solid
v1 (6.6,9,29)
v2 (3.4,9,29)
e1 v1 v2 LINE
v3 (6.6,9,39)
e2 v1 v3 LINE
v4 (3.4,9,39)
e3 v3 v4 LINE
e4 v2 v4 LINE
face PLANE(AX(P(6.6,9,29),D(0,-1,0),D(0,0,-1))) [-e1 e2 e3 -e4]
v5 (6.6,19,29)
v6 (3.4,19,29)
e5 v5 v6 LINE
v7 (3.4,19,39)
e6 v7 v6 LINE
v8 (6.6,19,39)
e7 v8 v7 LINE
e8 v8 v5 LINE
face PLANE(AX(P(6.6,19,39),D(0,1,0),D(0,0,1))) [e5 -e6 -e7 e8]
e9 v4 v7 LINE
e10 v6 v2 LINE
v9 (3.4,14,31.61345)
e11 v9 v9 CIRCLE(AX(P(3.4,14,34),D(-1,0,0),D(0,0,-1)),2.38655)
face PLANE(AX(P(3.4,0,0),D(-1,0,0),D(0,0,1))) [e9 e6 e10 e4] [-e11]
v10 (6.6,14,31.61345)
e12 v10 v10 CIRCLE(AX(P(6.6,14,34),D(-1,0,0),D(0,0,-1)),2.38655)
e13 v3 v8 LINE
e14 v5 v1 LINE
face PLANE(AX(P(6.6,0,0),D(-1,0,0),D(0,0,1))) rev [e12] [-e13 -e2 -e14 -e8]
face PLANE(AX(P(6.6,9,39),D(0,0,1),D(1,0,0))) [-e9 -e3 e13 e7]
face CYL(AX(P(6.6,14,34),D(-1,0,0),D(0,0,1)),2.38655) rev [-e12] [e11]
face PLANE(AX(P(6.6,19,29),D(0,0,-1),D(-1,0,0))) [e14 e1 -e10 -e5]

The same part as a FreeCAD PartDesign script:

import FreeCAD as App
import Part
import Sketcher
from FreeCAD import Vector
Q = App.Units.Quantity

doc = App.newDocument("Part")
body = doc.addObject("PartDesign::Body", "Body")

sketch1 = doc.addObject("Sketcher::SketchObject", "Sketch")
body.addObject(sketch1)
sketch1.AttachmentSupport = (doc.YZ_Plane, [""])
sketch1.MapMode = "FlatFace"
sketch1.AttachmentOffset = App.Placement(Vector(0, 0, 3.4), App.Rotation())
sketch1.addGeometry([
    Part.LineSegment(Vector(19, 39, 0), Vector(19, 29, 0)),
    Part.LineSegment(Vector(19, 29, 0), Vector(9, 29, 0)),
    Part.LineSegment(Vector(9, 29, 0), Vector(9, 39, 0)),
    Part.LineSegment(Vector(9, 39, 0), Vector(19, 39, 0)),
    Part.Circle(Vector(14, 34, 0), Vector(0, 0, 1), 2.4),
], False)
sketch1.addConstraint([
    Sketcher.Constraint("Coincident", 0, 2, 1, 1),
    Sketcher.Constraint("Coincident", 1, 2, 2, 1),
    Sketcher.Constraint("Coincident", 2, 2, 3, 1),
    Sketcher.Constraint("Coincident", 3, 2, 0, 1),
    Sketcher.Constraint("Vertical", 0),
    Sketcher.Constraint("Horizontal", 1),
    Sketcher.Constraint("Vertical", 2),
    Sketcher.Constraint("Horizontal", 3),
    Sketcher.Constraint("Equal", 3, 0),
    Sketcher.Constraint("DistanceX", 1, 2, 1, 1, Q("10 mm")),
    Sketcher.Constraint("DistanceX", -1, 1, 4, 3, Q("14 mm")),
    Sketcher.Constraint("DistanceY", -1, 1, 4, 3, Q("34 mm")),
    Sketcher.Constraint("DistanceX", -1, 1, 0, 2, Q("19 mm")),
    Sketcher.Constraint("DistanceY", -1, 1, 0, 2, Q("29 mm")),
    Sketcher.Constraint("Diameter", 4, Q("4.7731 mm")),
])
pad1 = doc.addObject("PartDesign::Pad", "Pad")
body.addObject(pad1)
pad1.Profile = sketch1
pad1.Length = 3.2

doc.recompute()
